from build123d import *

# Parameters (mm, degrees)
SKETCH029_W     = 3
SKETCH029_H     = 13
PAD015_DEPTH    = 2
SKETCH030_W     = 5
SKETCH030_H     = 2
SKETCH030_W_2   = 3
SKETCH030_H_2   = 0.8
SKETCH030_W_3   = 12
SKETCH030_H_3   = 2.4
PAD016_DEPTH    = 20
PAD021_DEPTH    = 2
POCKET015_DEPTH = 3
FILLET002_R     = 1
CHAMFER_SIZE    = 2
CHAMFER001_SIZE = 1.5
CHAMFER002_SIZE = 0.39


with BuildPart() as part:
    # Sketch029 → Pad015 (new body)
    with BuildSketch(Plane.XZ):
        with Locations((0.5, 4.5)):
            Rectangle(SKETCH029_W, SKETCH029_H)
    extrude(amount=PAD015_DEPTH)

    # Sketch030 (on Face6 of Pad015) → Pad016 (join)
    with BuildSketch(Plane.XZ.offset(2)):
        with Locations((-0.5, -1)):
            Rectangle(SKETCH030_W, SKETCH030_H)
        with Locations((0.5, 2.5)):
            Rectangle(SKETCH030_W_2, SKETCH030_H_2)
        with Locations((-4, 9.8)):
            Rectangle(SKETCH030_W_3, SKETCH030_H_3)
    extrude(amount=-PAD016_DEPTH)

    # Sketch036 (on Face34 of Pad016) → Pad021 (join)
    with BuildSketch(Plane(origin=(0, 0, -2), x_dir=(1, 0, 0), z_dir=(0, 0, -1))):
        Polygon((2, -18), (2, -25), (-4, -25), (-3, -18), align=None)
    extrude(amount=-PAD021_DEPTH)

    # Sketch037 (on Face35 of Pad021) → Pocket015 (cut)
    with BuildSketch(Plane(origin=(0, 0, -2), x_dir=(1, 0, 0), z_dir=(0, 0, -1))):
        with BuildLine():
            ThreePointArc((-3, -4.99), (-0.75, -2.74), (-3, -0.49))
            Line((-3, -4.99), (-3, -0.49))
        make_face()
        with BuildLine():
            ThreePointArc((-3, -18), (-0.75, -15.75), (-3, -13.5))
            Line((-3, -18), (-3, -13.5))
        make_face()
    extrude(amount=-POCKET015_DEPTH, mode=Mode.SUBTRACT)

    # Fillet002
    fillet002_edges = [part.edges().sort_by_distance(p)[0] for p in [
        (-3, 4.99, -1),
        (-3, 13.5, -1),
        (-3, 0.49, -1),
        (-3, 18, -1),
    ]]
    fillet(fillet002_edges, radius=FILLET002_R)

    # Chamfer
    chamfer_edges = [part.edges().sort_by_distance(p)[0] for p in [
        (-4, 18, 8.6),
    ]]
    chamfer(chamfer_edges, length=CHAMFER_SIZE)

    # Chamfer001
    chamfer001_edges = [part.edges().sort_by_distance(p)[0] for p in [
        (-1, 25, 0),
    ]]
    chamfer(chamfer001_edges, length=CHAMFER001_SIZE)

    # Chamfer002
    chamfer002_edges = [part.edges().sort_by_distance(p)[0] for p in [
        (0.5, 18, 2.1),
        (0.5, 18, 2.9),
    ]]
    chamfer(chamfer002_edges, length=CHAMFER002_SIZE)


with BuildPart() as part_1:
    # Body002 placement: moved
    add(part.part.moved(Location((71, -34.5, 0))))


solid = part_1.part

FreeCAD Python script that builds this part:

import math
import FreeCAD as App
import Part
import Sketcher


def edges_at(feature, points):
    """Names of the edges that pass closest to the given points."""
    edges = feature.Shape.Edges
    near = lambda p: min(range(len(edges)), key=lambda i: edges[i].distToShape(Part.Vertex(*p))[0])
    return sorted({f"Edge{near(p) + 1}" for p in points})


def add_polygon(sketch, points):
    """Adds a closed chain of lines whose ends are joined by coincident constraints."""
    first, n = sketch.GeometryCount, len(points)
    for a, b in zip(points, points[1:] + points[:1]):
        sketch.addGeometry(Part.LineSegment(App.Vector(*a, 0), App.Vector(*b, 0)), False)
    for i in range(n):
        sketch.addConstraint(Sketcher.Constraint("Coincident", first + i, 2, first + (i + 1) % n, 1))

doc = App.newDocument("Part")
body = doc.addObject("PartDesign::Body", "Body")

# Sketch on XZ plane
sketch1 = body.newObject("Sketcher::SketchObject", "Sketch")
sketch1.AttachmentSupport = (doc.getObject("XZ_Plane"), [""])
sketch1.MapMode = "FlatFace"
add_polygon(sketch1, [(-1, 11), (-1, -2), (2, -2), (2, 11)])  # lines 0-3
sketch1.addConstraint(Sketcher.Constraint("Vertical", 0))
sketch1.addConstraint(Sketcher.Constraint("Horizontal", 1))
sketch1.addConstraint(Sketcher.Constraint("Vertical", 2))
sketch1.addConstraint(Sketcher.Constraint("Horizontal", 3))
sketch1.addConstraint(Sketcher.Constraint("DistanceX", 1, 1, 1, 2, 3.0))
sketch1.addConstraint(Sketcher.Constraint("DistanceY", 0, 2, 0, 1, 13.0))
sketch1.addConstraint(Sketcher.Constraint("DistanceX", 0, 2, -1, 1, 1.0))
sketch1.addConstraint(Sketcher.Constraint("DistanceY", 0, 2, -1, 1, 2.0))
pad1 = body.newObject("PartDesign::Pad", "Pad")
pad1.Profile = sketch1
pad1.Length = 2

# Sketch on XZ plane
sketch2 = body.newObject("Sketcher::SketchObject", "Sketch001")
sketch2.AttachmentSupport = (doc.getObject("XZ_Plane"), [""])
sketch2.MapMode = "FlatFace"
sketch2.AttachmentOffset = App.Placement(App.Vector(0, 0, 2), App.Rotation())
add_polygon(sketch2, [(-3, 0), (-3, -2), (2, -2), (2, 0)])  # lines 0-3
add_polygon(sketch2, [(-1, 2.9), (-1, 2.1), (2, 2.1), (2, 2.9)])  # lines 4-7
add_polygon(sketch2, [(-10, 11), (-10, 8.6), (2, 8.6), (2, 11)])  # lines 8-11
sketch2.addConstraint(Sketcher.Constraint("Vertical", 0))
sketch2.addConstraint(Sketcher.Constraint("Horizontal", 1))
sketch2.addConstraint(Sketcher.Constraint("Vertical", 2))
sketch2.addConstraint(Sketcher.Constraint("Horizontal", 3))
sketch2.addConstraint(Sketcher.Constraint("Vertical", 4))
sketch2.addConstraint(Sketcher.Constraint("Horizontal", 5))
sketch2.addConstraint(Sketcher.Constraint("Vertical", 6))
sketch2.addConstraint(Sketcher.Constraint("Horizontal", 7))
sketch2.addConstraint(Sketcher.Constraint("Vertical", 8))
sketch2.addConstraint(Sketcher.Constraint("Horizontal", 9))
sketch2.addConstraint(Sketcher.Constraint("Vertical", 10))
sketch2.addConstraint(Sketcher.Constraint("Horizontal", 11))
sketch2.addConstraint(Sketcher.Constraint("PointOnObject", 2, 2, -1))
sketch2.addConstraint(Sketcher.Constraint("Vertical", 2, 2, 5, 2))
sketch2.addConstraint(Sketcher.Constraint("Vertical", 6, 2, 9, 2))
sketch2.addConstraint(Sketcher.Constraint("DistanceX", 1, 1, 1, 2, 5.0))
sketch2.addConstraint(Sketcher.Constraint("DistanceX", 5, 1, 5, 2, 3.0))
sketch2.addConstraint(Sketcher.Constraint("DistanceX", 9, 1, 9, 2, 12.0))
sketch2.addConstraint(Sketcher.Constraint("DistanceY", 0, 2, 0, 1, 2.0))
sketch2.addConstraint(Sketcher.Constraint("DistanceY", 4, 2, 4, 1, 0.8))
sketch2.addConstraint(Sketcher.Constraint("DistanceY", 8, 2, 8, 1, 2.4))
sketch2.addConstraint(Sketcher.Constraint("DistanceX", 0, 2, -1, 1, 3.0))
sketch2.addConstraint(Sketcher.Constraint("DistanceY", -1, 1, 10, 2, 11.0))
sketch2.addConstraint(Sketcher.Constraint("DistanceY", -1, 1, 4, 2, 2.1))
pad2 = body.newObject("PartDesign::Pad", "Pad001")
pad2.Profile = sketch2
pad2.Length = 20
pad2.Reversed = True

# Sketch on XY plane
sketch3 = body.newObject("Sketcher::SketchObject", "Sketch002")
sketch3.AttachmentSupport = (doc.getObject("XY_Plane"), [""])
sketch3.MapMode = "FlatFace"
sketch3.AttachmentOffset = App.Placement(App.Vector(0, 0, -2), App.Rotation())
add_polygon(sketch3, [(2, 25), (2, 18), (-3, 18), (-4, 25)])  # lines 0-3
sketch3.addConstraint(Sketcher.Constraint("Vertical", 0))
sketch3.addConstraint(Sketcher.Constraint("Horizontal", 1))
sketch3.addConstraint(Sketcher.Constraint("Horizontal", 3))
sketch3.addConstraint(Sketcher.Constraint("DistanceX", 1, 2, 1, 1, 5.0))
sketch3.addConstraint(Sketcher.Constraint("DistanceX", 3, 1, 3, 2, 6.0))
sketch3.addConstraint(Sketcher.Constraint("DistanceY", 0, 2, 0, 1, 7.0))
sketch3.addConstraint(Sketcher.Constraint("DistanceX", -1, 1, 0, 2, 2.0))
sketch3.addConstraint(Sketcher.Constraint("DistanceY", -1, 1, 0, 2, 18.0))
pad3 = body.newObject("PartDesign::Pad", "Pad002")
pad3.Profile = sketch3
pad3.Length = 2

# Sketch on XY plane
sketch4 = body.newObject("Sketcher::SketchObject", "Sketch003")
sketch4.AttachmentSupport = (doc.getObject("XY_Plane"), [""])
sketch4.MapMode = "FlatFace"
sketch4.AttachmentOffset = App.Placement(App.Vector(0, 0, -2), App.Rotation())
sketch4.addGeometry(Part.ArcOfCircle(Part.Circle(App.Vector(-3, 2.7, 0), App.Vector(0, 0, 1), 2.2), math.radians(-90), math.radians(90)), False)
sketch4.addGeometry(Part.LineSegment(App.Vector(-3, 0.5, 0), App.Vector(-3, 5, 0)), False)
sketch4.addGeometry(Part.ArcOfCircle(Part.Circle(App.Vector(-3, 15.8, 0), App.Vector(0, 0, 1), 2.2), math.radians(-90), math.radians(90)), False)
sketch4.addGeometry(Part.LineSegment(App.Vector(-3, 13.5, 0), App.Vector(-3, 18, 0)), False)
sketch4.addConstraint(Sketcher.Constraint("Coincident", 0, 1, 1, 1))
sketch4.addConstraint(Sketcher.Constraint("Coincident", 1, 2, 0, 2))
sketch4.addConstraint(Sketcher.Constraint("Coincident", 2, 1, 3, 1))
sketch4.addConstraint(Sketcher.Constraint("Coincident", 3, 2, 2, 2))
sketch4.addConstraint(Sketcher.Constraint("Vertical", 1))
sketch4.addConstraint(Sketcher.Constraint("Vertical", 3))
sketch4.addConstraint(Sketcher.Constraint("Equal", 0, 2))
sketch4.addConstraint(Sketcher.Constraint("Vertical", 0, 3, 2, 3))
sketch4.addConstraint(Sketcher.Constraint("Vertical", 2, 3, 0, 1))
sketch4.addConstraint(Sketcher.Constraint("Vertical", 1, 2, 2, 1))
sketch4.addConstraint(Sketcher.Constraint("Radius", 0, 2.25))
sketch4.addConstraint(Sketcher.Constraint("DistanceX", 0, 3, -1, 1, 3.0))
sketch4.addConstraint(Sketcher.Constraint("DistanceY", -1, 1, 3, 2, 18.0))
sketch4.addConstraint(Sketcher.Constraint("DistanceY", -1, 1, 0, 3, 2.74))
pocket1 = body.newObject("PartDesign::Pocket", "Pocket")
pocket1.Profile = sketch4
pocket1.Length = 3
pocket1.Reversed = True
doc.recompute()

fillet = body.newObject("PartDesign::Fillet", "Fillet")
fillet.Base = (pocket1, edges_at(pocket1, [
    (-3, 4.99, -1),
    (-3, 13.5, -1),
    (-3, 0.49, -1),
    (-3, 18, -1),
]))
fillet.Radius = 1
doc.recompute()

chamfer = body.newObject("PartDesign::Chamfer", "Chamfer")
chamfer.Base = (fillet, edges_at(fillet, [(-4, 18, 8.6)]))
chamfer.Size = 2
doc.recompute()

chamfer2 = body.newObject("PartDesign::Chamfer", "Chamfer001")
chamfer2.Base = (chamfer, edges_at(chamfer, [(-1, 25, 0)]))
chamfer2.Size = 1.5
doc.recompute()

chamfer3 = body.newObject("PartDesign::Chamfer", "Chamfer002")
chamfer3.Base = (chamfer2, edges_at(chamfer2, [(0.5, 18, 2.1), (0.5, 18, 2.9)]))
chamfer3.Size = 0.39
body2 = doc.addObject("PartDesign::Body", "Body001")
doc.recompute()

body.Placement = App.Placement(App.Vector(71, -34.5, 0), App.Rotation(App.Vector(0, 0, 1), 0))
boolean = body2.newObject("PartDesign::Boolean", "Boolean")
boolean.Type = "Fuse"
boolean.addObjects([body])

doc.recompute()
